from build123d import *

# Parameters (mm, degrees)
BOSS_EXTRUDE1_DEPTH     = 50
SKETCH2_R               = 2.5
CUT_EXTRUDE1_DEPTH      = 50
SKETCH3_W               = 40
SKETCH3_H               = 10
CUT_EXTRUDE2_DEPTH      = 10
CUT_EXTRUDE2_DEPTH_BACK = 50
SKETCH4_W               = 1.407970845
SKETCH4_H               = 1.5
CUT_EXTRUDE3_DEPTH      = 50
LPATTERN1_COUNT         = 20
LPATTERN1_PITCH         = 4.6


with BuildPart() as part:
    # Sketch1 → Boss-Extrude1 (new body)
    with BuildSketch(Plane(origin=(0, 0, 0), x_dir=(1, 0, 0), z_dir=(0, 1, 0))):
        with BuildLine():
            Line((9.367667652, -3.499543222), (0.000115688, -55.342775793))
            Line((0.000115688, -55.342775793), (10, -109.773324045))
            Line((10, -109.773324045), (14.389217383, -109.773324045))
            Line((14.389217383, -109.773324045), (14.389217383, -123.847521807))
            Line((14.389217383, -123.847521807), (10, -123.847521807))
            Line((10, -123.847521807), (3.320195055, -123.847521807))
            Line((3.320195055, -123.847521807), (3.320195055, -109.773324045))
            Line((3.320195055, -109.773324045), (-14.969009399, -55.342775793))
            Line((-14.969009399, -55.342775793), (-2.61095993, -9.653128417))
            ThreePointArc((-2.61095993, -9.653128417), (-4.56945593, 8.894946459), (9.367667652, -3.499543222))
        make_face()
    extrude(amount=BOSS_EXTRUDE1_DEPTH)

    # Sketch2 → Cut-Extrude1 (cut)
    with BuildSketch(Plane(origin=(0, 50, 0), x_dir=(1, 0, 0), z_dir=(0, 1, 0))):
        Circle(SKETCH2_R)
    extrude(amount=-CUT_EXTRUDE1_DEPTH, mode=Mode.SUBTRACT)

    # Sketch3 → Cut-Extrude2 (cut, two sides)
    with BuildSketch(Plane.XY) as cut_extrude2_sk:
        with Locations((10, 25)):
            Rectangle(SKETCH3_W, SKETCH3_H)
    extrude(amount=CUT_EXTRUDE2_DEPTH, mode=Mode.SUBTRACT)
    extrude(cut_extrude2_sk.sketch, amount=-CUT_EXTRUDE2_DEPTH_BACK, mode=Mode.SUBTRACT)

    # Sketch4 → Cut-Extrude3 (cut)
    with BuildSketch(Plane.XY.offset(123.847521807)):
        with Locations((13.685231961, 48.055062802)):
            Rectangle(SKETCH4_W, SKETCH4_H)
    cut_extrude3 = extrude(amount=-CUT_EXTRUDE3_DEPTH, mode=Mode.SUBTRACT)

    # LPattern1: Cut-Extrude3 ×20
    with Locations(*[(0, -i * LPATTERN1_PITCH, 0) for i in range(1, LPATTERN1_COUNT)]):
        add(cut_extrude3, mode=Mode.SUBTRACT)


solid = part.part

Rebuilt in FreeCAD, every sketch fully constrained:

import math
import FreeCAD as App
import Part
import Sketcher
Q = App.Units.Quantity


def add_polygon(sketch, points):
    """Adds a closed chain of lines whose ends are joined by coincident constraints."""
    first, n = sketch.GeometryCount, len(points)
    for a, b in zip(points, points[1:] + points[:1]):
        sketch.addGeometry(Part.LineSegment(App.Vector(*a, 0), App.Vector(*b, 0)), False)
    for i in range(n):
        sketch.addConstraint(Sketcher.Constraint("Coincident", first + i, 2, first + (i + 1) % n, 1))

doc = App.newDocument("Part")
params = doc.addObject("Spreadsheet::Sheet", "Params")
for row, (alias, value) in enumerate([
    ("sketch1_radius", "10 mm"),
    ("pad1_length", "50 mm"),
    ("sketch2_diameter", "5 mm"),
    ("pocket1_length", "50 mm"),
    ("sketch3_width", "40 mm"),
    ("sketch3_height", "10 mm"),
    ("pocket2_length", "10 mm"),
    ("pocket2_length2", "50 mm"),
    ("sketch4_height", "1.5 mm"),
    ("pocket3_length", "50 mm"),
    ("linearpattern_pitch", "4.6 mm"),
], start=1):
    params.set(f"A{row}", alias)
    params.set(f"B{row}", "=" + value)
    params.setAlias(f"B{row}", alias)

body = doc.addObject("PartDesign::Body", "Body")

sketch1 = body.newObject("Sketcher::SketchObject", "Sketch")
sketch1.AttachmentSupport = (doc.getObject("XZ_Plane"), [""])
sketch1.MapMode = "FlatFace"
sketch1.addGeometry(Part.LineSegment(App.Vector(0, 55.3, 0), App.Vector(9.4, 3.5, 0)), False)
sketch1.addGeometry(Part.ArcOfCircle(Part.Circle(App.Vector(0, 0, 0), App.Vector(0, 0, 1), 10), math.radians(105), math.radians(380)), False)
sketch1.addGeometry(Part.LineSegment(App.Vector(-2.6, 9.7, 0), App.Vector(-15, 55.3, 0)), False)
sketch1.addGeometry(Part.LineSegment(App.Vector(-15, 55.3, 0), App.Vector(3.3, 109.8, 0)), False)
sketch1.addGeometry(Part.LineSegment(App.Vector(3.3, 109.8, 0), App.Vector(3.3, 123.8, 0)), False)
sketch1.addGeometry(Part.LineSegment(App.Vector(3.3, 123.8, 0), App.Vector(14.4, 123.8, 0)), False)
sketch1.addGeometry(Part.LineSegment(App.Vector(14.4, 123.8, 0), App.Vector(14.4, 109.8, 0)), False)
sketch1.addGeometry(Part.LineSegment(App.Vector(14.4, 109.8, 0), App.Vector(10, 109.8, 0)), False)
sketch1.addGeometry(Part.LineSegment(App.Vector(10, 109.8, 0), App.Vector(0, 55.3, 0)), False)
sketch1.addConstraint(Sketcher.Constraint("Coincident", 0, 2, 1, 2))
sketch1.addConstraint(Sketcher.Constraint("Coincident", 1, 1, 2, 1))
sketch1.addConstraint(Sketcher.Constraint("Coincident", 2, 2, 3, 1))
sketch1.addConstraint(Sketcher.Constraint("Coincident", 3, 2, 4, 1))
sketch1.addConstraint(Sketcher.Constraint("Coincident", 4, 2, 5, 1))
sketch1.addConstraint(Sketcher.Constraint("Coincident", 5, 2, 6, 1))
sketch1.addConstraint(Sketcher.Constraint("Coincident", 6, 2, 7, 1))
sketch1.addConstraint(Sketcher.Constraint("Coincident", 7, 2, 8, 1))
sketch1.addConstraint(Sketcher.Constraint("Coincident", 8, 2, 0, 1))
sketch1.addConstraint(Sketcher.Constraint("Vertical", 4))
sketch1.addConstraint(Sketcher.Constraint("Horizontal", 5))
sketch1.addConstraint(Sketcher.Constraint("Vertical", 6))
sketch1.addConstraint(Sketcher.Constraint("Horizontal", 7))
sketch1.addConstraint(Sketcher.Constraint("Coincident", 1, 3, -1, 1))
sketch1.addConstraint(Sketcher.Constraint("Horizontal", 3, 2, 6, 2))
sketch1.addConstraint(Sketcher.Constraint("Horizontal", 2, 2, 8, 2))
sketch1.addConstraint(Sketcher.Constraint("Radius", 1, Q("10 mm")))
sketch1.addConstraint(Sketcher.Constraint("DistanceX", -1, 1, 7, 2, Q("10 mm")))
sketch1.addConstraint(Sketcher.Constraint("Distance", 2, Q("47.331441 mm")))
sketch1.addConstraint(Sketcher.Constraint("DistanceX", 5, 1, 5, 2, Q("11.069022 mm")))
sketch1.addConstraint(Sketcher.Constraint("DistanceX", 7, 2, 7, 1, Q("4.389217 mm")))
sketch1.addConstraint(Sketcher.Constraint("DistanceY", 4, 1, 4, 2, Q("14.074198 mm")))
sketch1.addConstraint(Sketcher.Constraint("DistanceX", 1, 1, -1, 1, Q("2.61096 mm")))
sketch1.addConstraint(Sketcher.Constraint("DistanceX", 2, 2, -1, 1, Q("14.969009 mm")))
sketch1.addConstraint(Sketcher.Constraint("DistanceY", -1, 1, 4, 2, Q("123.847522 mm")))
sketch1.addConstraint(Sketcher.Constraint("DistanceY", 0, 2, 3, 2, Q("106.273781 mm")))
sketch1.addConstraint(Sketcher.Constraint("DistanceX", 8, 2, 0, 2, Q("9.367552 mm")))
sketch1.setExpression("Constraints[16]", "Params.sketch1_radius")
pad1 = body.newObject("PartDesign::Pad", "Pad")
pad1.Profile = sketch1
pad1.setExpression("Length", "Params.pad1_length")
pad1.Reversed = True

sketch2 = body.newObject("Sketcher::SketchObject", "Sketch001")
sketch2.AttachmentSupport = (doc.getObject("XZ_Plane"), [""])
sketch2.MapMode = "FlatFace"
sketch2.AttachmentOffset = App.Placement(App.Vector(0, 0, -50), App.Rotation())
sketch2.addGeometry(Part.Circle(App.Vector(0, 0, 0), App.Vector(0, 0, 1), 2.5), False)
sketch2.addConstraint(Sketcher.Constraint("Coincident", 0, 3, -1, 1))
sketch2.addConstraint(Sketcher.Constraint("Diameter", 0, Q("5 mm")))
sketch2.setExpression("Constraints[1]", "Params.sketch2_diameter")
pocket1 = body.newObject("PartDesign::Pocket", "Pocket")
pocket1.Profile = sketch2
pocket1.setExpression("Length", "Params.pocket1_length")
pocket1.Reversed = True

sketch3 = body.newObject("Sketcher::SketchObject", "Sketch002")
sketch3.AttachmentSupport = (doc.getObject("XY_Plane"), [""])
sketch3.MapMode = "FlatFace"
add_polygon(sketch3, [(-10, 30), (-10, 20), (30, 20), (30, 30)])
sketch3.addConstraint(Sketcher.Constraint("Vertical", 0))
sketch3.addConstraint(Sketcher.Constraint("Horizontal", 1))
sketch3.addConstraint(Sketcher.Constraint("Vertical", 2))
sketch3.addConstraint(Sketcher.Constraint("Horizontal", 3))
sketch3.addConstraint(Sketcher.Constraint("DistanceX", 1, 1, 1, 2, Q("40 mm")))
sketch3.addConstraint(Sketcher.Constraint("DistanceY", 0, 2, 0, 1, Q("10 mm")))
sketch3.addConstraint(Sketcher.Constraint("DistanceX", 0, 2, -1, 1, Q("10 mm")))
sketch3.addConstraint(Sketcher.Constraint("DistanceY", -1, 1, 0, 2, Q("20 mm")))
sketch3.setExpression("Constraints[8]", "Params.sketch3_width")
sketch3.setExpression("Constraints[9]", "Params.sketch3_height")
pocket2 = body.newObject("PartDesign::Pocket", "Pocket001")
pocket2.Profile = sketch3
pocket2.Type = "TwoLengths"
pocket2.setExpression("Length", "Params.pocket2_length")
pocket2.setExpression("Length2", "Params.pocket2_length2")
pocket2.Reversed = True

sketch4 = body.newObject("Sketcher::SketchObject", "Sketch003")
sketch4.AttachmentSupport = (doc.getObject("XY_Plane"), [""])
sketch4.MapMode = "FlatFace"
sketch4.AttachmentOffset = App.Placement(App.Vector(0, 0, 123.847522), App.Rotation())
add_polygon(sketch4, [(13, 48.8), (13, 47.3), (14.4, 47.3), (14.4, 48.8)])
sketch4.addConstraint(Sketcher.Constraint("Vertical", 0))
sketch4.addConstraint(Sketcher.Constraint("Horizontal", 1))
sketch4.addConstraint(Sketcher.Constraint("Vertical", 2))
sketch4.addConstraint(Sketcher.Constraint("Horizontal", 3))
sketch4.addConstraint(Sketcher.Constraint("DistanceY", 0, 2, 0, 1, Q("1.5 mm")))
sketch4.addConstraint(Sketcher.Constraint("DistanceX", 1, 1, 1, 2, Q("1.407971 mm")))
sketch4.addConstraint(Sketcher.Constraint("DistanceX", -1, 1, 0, 2, Q("12.981247 mm")))
sketch4.addConstraint(Sketcher.Constraint("DistanceY", -1, 1, 0, 2, Q("47.305063 mm")))
sketch4.setExpression("Constraints[8]", "Params.sketch4_height")
pocket3 = body.newObject("PartDesign::Pocket", "Pocket002")
pocket3.Profile = sketch4
pocket3.setExpression("Length", "Params.pocket3_length")
doc.recompute()

linearpattern = body.newObject("PartDesign::LinearPattern", "LinearPattern")
linearpattern.Originals = [pocket3]
linearpattern.Direction = (doc.getObject("Y_Axis"), [""])
linearpattern.Mode = "offset"
linearpattern.setExpression("Offset", "Params.linearpattern_pitch")
linearpattern.Occurrences = 20
linearpattern.Reversed = True
body.Tip = linearpattern

doc.recompute()
